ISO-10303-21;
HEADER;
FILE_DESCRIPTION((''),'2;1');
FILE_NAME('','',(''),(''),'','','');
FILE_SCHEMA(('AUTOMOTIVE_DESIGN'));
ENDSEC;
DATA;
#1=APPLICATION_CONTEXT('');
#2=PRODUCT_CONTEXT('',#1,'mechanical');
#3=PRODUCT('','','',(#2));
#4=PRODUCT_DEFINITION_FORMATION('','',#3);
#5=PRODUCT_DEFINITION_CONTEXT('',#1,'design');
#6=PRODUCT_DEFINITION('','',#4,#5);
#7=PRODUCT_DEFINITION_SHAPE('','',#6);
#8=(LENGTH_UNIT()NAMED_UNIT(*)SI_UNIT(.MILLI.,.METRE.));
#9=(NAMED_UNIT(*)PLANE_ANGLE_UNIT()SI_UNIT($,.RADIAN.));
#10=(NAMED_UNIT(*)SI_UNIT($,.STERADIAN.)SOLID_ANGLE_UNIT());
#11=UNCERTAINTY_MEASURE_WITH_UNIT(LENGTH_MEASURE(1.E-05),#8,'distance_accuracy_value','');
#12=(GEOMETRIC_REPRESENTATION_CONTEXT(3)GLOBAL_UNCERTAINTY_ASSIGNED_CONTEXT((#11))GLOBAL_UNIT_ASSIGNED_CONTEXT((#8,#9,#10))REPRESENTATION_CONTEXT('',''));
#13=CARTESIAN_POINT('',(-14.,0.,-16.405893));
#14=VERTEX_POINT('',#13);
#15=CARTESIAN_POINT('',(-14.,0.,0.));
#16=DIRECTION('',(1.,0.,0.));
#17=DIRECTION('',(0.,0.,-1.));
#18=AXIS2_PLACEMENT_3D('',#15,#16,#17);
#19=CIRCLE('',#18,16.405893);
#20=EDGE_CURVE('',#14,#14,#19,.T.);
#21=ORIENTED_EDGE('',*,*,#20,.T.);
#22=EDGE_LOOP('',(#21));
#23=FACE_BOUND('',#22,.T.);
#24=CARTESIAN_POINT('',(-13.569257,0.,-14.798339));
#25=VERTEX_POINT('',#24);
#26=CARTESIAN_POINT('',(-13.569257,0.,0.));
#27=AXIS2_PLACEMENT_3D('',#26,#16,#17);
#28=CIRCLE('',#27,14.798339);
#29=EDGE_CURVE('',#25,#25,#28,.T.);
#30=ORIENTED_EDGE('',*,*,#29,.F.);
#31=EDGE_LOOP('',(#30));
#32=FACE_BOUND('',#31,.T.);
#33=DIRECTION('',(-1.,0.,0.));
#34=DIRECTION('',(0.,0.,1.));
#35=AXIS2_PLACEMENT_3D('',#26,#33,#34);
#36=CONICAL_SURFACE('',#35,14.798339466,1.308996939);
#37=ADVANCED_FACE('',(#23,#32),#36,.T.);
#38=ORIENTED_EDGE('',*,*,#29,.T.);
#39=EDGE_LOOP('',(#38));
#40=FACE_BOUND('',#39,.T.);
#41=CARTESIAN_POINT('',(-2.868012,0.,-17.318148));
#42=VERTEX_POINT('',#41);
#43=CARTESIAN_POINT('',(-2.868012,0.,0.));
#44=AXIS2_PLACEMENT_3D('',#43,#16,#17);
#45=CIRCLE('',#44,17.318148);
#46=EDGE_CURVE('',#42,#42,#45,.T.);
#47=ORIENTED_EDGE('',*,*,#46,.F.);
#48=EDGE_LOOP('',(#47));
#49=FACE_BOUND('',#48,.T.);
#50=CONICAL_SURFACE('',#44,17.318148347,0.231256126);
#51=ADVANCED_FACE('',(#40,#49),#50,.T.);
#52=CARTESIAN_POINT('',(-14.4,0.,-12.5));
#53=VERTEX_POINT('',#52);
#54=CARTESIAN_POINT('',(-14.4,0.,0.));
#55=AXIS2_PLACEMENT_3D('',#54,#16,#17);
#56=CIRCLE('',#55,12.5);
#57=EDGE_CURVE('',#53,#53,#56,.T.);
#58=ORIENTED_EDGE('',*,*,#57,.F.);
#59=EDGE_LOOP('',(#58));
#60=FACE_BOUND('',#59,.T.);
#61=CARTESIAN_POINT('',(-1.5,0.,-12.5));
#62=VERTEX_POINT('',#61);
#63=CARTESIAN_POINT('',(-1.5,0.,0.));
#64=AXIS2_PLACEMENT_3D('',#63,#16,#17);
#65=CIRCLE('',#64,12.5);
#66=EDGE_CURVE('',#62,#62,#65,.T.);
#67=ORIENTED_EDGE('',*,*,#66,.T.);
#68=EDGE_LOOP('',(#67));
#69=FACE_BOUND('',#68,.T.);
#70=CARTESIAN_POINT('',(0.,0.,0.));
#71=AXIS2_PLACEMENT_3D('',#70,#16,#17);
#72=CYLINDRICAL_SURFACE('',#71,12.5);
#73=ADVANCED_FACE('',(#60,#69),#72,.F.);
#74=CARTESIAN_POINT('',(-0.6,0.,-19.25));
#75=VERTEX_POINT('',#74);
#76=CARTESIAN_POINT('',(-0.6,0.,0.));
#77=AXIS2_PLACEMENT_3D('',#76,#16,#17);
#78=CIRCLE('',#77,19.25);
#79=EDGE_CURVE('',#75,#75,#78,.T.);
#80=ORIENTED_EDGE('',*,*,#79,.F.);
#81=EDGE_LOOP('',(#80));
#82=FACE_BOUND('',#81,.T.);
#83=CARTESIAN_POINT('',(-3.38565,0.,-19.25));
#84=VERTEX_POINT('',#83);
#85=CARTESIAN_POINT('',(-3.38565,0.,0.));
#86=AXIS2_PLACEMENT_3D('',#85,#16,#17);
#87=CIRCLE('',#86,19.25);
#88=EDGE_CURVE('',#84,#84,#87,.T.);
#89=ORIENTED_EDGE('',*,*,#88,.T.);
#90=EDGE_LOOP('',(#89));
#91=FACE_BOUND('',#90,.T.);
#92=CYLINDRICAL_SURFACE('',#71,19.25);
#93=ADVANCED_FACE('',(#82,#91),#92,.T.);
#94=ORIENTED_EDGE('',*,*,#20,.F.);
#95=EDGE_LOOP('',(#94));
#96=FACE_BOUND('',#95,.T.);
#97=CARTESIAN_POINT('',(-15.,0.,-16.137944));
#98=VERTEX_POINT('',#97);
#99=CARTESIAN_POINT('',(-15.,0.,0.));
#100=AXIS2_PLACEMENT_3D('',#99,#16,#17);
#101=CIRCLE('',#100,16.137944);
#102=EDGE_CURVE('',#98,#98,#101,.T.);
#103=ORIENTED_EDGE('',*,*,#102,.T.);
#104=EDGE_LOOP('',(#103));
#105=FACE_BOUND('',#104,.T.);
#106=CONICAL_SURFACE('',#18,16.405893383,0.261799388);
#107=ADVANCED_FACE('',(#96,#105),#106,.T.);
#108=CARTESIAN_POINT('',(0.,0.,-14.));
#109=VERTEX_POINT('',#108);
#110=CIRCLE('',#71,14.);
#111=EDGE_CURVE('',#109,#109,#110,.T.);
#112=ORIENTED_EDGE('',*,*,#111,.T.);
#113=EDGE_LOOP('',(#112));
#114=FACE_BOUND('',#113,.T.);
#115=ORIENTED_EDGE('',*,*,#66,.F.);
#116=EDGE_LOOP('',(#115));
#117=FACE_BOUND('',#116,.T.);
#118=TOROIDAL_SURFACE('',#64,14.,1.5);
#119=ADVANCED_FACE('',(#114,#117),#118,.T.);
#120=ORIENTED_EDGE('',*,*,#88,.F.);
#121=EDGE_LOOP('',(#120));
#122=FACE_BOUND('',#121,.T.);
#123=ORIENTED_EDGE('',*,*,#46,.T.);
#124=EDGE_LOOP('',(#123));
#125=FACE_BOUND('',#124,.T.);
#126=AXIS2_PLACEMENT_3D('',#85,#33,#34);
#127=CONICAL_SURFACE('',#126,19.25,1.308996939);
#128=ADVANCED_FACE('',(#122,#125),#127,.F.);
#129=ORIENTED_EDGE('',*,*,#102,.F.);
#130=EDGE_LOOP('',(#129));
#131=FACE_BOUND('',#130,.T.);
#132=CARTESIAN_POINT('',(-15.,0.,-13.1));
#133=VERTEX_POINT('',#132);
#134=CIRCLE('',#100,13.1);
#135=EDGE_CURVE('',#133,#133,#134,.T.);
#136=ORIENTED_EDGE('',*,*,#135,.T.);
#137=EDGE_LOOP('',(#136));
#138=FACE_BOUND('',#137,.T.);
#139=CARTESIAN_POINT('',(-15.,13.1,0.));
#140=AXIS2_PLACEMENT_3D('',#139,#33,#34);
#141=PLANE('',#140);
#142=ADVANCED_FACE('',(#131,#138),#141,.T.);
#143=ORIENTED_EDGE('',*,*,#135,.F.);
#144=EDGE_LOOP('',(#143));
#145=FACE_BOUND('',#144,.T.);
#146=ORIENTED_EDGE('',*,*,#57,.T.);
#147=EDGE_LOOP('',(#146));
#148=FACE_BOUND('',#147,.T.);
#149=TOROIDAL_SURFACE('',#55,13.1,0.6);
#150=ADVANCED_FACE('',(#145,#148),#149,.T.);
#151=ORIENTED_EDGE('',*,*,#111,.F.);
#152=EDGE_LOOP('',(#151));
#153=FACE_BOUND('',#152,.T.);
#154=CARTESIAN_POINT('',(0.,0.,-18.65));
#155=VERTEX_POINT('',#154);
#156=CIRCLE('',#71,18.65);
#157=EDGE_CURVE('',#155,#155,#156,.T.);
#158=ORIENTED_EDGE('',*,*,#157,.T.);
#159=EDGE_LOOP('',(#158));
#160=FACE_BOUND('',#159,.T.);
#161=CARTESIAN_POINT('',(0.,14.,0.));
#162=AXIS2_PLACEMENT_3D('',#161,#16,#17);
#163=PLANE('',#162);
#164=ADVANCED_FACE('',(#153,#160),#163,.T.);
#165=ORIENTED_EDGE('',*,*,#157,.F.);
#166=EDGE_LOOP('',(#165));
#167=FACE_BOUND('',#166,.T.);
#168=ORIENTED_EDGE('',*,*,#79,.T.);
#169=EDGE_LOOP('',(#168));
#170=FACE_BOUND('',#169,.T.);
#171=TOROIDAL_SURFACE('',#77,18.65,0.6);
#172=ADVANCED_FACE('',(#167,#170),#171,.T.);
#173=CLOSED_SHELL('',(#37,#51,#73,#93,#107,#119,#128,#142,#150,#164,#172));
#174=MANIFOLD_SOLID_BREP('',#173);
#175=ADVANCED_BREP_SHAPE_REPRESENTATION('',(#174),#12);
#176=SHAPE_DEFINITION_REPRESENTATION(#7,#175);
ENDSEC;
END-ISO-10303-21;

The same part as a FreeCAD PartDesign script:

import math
import FreeCAD as App
import Part
import Sketcher
Q = App.Units.Quantity

doc = App.newDocument("Part")
body = doc.addObject("PartDesign::Body", "Body")

sketch1 = body.newObject("Sketcher::SketchObject", "Sketch")
sketch1.AttachmentSupport = (doc.getObject("XY_Plane"), [""])
sketch1.MapMode = "FlatFace"
sketch1.addGeometry([
    Part.LineSegment(App.Vector(0, 14, 0), App.Vector(0, 18.6, 0)),
    Part.ArcOfCircle(Part.Circle(App.Vector(-0.6, 18.7, 0), App.Vector(0, 0, 1), 0.6), math.radians(0), math.radians(90)),
    Part.LineSegment(App.Vector(-0.6, 19.2, 0), App.Vector(-3.4, 19.2, 0)),
    Part.LineSegment(App.Vector(-3.4, 19.2, 0), App.Vector(-2.9, 17.3, 0)),
    Part.LineSegment(App.Vector(-2.9, 17.3, 0), App.Vector(-13.6, 14.8, 0)),
    Part.LineSegment(App.Vector(-13.6, 14.8, 0), App.Vector(-14, 16.4, 0)),
    Part.LineSegment(App.Vector(-14, 16.4, 0), App.Vector(-15, 16.1, 0)),
    Part.LineSegment(App.Vector(-15, 16.1, 0), App.Vector(-15, 13.1, 0)),
    Part.ArcOfCircle(Part.Circle(App.Vector(-14.4, 13.1, 0), App.Vector(0, 0, 1), 0.6), math.radians(180), math.radians(270)),
    Part.LineSegment(App.Vector(-14.4, 12.5, 0), App.Vector(-1.5, 12.5, 0)),
    Part.ArcOfCircle(Part.Circle(App.Vector(-1.5, 14, 0), App.Vector(0, 0, 1), 1.5), math.radians(-90), math.radians(0)),
], False)
sketch1.addConstraint([
    Sketcher.Constraint("Tangent", 0, 2, 1, 1),
    Sketcher.Constraint("Tangent", 1, 2, 2, 1),
    Sketcher.Constraint("Coincident", 2, 2, 3, 1),
    Sketcher.Constraint("Coincident", 3, 2, 4, 1),
    Sketcher.Constraint("Coincident", 4, 2, 5, 1),
    Sketcher.Constraint("Coincident", 5, 2, 6, 1),
    Sketcher.Constraint("Coincident", 6, 2, 7, 1),
    Sketcher.Constraint("Tangent", 7, 2, 8, 1),
    Sketcher.Constraint("Tangent", 8, 2, 9, 1),
    Sketcher.Constraint("Tangent", 9, 2, 10, 1),
    Sketcher.Constraint("Tangent", 10, 2, 0, 1),
    Sketcher.Constraint("Vertical", 0),
    Sketcher.Constraint("Horizontal", 2),
    Sketcher.Constraint("Vertical", 7),
    Sketcher.Constraint("Horizontal", 9),
    Sketcher.Constraint("Equal", 1, 8),
    Sketcher.Constraint("PointOnObject", 0, 2, -2),
    Sketcher.Constraint("Parallel", 3, 5),
    Sketcher.Constraint("Perpendicular", 5, 6),
    Sketcher.Constraint("Radius", 1, 0.6),
    Sketcher.Constraint("Radius", 10, 1.5),
    Sketcher.Constraint("Angle", 3, Q("-75 deg")),
    Sketcher.Constraint("Distance", 3, 2.0),
    Sketcher.Constraint("DistanceX", 9, 1, 9, 2, 12.9),
    Sketcher.Constraint("DistanceY", -1, 1, 10, 3, 14.0),
    Sketcher.Constraint("DistanceX", 5, 2, -1, 1, 14.0),
    Sketcher.Constraint("DistanceY", 0, 1, 0, 2, 4.65),
    Sketcher.Constraint("Angle", 4, Q("-166.75 deg")),
    Sketcher.Constraint("DistanceX", 2, 2, 2, 1, 2.78565),
    Sketcher.Constraint("Distance", 4, 10.993912),
])
revolution = body.newObject("PartDesign::Revolution", "Revolution")
revolution.Profile = sketch1
revolution.ReferenceAxis = (sketch1, ["H_Axis"])
revolution.Angle = 360

doc.recompute()
